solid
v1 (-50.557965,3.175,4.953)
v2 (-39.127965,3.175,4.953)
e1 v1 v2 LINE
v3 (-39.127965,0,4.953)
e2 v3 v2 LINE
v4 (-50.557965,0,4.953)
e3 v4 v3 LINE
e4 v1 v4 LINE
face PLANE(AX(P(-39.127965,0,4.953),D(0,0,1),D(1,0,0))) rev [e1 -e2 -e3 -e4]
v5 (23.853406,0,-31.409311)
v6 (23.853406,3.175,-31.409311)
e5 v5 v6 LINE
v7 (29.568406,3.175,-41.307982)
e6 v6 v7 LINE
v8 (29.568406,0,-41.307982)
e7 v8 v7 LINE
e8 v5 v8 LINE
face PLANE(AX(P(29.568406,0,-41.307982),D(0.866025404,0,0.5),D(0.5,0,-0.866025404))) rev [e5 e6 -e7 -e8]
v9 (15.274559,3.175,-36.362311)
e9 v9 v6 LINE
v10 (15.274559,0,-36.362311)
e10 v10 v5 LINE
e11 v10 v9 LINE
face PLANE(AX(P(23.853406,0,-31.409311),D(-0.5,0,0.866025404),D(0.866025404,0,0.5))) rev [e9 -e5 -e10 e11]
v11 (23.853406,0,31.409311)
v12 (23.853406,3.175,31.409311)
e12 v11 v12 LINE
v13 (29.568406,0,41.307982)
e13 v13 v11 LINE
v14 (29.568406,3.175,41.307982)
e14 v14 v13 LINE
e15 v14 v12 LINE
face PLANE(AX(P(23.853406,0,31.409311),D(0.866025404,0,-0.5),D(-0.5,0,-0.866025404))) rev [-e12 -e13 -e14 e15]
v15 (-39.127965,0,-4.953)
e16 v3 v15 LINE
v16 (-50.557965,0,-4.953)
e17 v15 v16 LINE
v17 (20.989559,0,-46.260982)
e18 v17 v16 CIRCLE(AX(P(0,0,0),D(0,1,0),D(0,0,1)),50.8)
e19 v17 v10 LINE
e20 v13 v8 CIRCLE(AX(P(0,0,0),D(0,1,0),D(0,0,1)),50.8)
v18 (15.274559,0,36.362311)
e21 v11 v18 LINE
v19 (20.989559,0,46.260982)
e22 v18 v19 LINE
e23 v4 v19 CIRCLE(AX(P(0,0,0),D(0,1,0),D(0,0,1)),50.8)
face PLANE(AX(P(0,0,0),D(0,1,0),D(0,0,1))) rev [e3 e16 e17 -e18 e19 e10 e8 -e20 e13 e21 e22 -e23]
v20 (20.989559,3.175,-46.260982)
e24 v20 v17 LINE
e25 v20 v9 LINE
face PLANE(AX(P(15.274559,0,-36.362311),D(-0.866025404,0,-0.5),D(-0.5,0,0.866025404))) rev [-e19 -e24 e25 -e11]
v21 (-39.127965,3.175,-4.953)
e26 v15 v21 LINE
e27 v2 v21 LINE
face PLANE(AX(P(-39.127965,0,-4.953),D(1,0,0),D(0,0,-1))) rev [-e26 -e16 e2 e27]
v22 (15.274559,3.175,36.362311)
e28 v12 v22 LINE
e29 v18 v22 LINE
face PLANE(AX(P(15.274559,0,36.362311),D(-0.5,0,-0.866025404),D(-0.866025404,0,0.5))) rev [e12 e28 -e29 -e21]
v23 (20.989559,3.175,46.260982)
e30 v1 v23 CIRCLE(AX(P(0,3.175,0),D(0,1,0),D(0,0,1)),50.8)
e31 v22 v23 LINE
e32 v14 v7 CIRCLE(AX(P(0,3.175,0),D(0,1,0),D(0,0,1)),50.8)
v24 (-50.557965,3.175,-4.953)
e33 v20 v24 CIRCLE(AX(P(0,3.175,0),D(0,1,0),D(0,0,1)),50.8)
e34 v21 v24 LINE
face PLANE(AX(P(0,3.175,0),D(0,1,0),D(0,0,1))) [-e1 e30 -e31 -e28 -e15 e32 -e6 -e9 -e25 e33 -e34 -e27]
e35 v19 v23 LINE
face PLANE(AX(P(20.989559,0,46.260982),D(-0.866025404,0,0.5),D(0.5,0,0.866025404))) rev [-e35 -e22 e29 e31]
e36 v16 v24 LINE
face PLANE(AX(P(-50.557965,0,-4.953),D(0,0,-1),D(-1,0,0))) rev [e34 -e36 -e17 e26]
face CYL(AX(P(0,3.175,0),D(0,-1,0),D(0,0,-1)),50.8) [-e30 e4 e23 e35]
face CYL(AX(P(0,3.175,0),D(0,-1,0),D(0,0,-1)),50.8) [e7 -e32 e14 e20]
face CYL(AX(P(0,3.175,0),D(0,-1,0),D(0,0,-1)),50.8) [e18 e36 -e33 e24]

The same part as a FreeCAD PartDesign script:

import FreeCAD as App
import Part
import Sketcher

V = App.Vector
Q = App.Units.Quantity


def add_polygon(sketch, points):
    """Adds a closed chain of lines whose ends are joined by coincident constraints."""
    first, n = sketch.GeometryCount, len(points)
    for a, b in zip(points, points[1:] + points[:1]):
        sketch.addGeometry(Part.LineSegment(App.Vector(*a, 0), App.Vector(*b, 0)), False)
    for i in range(n):
        sketch.addConstraint(Sketcher.Constraint("Coincident", first + i, 2, first + (i + 1) % n, 1))

doc = App.newDocument("Part")
body = doc.addObject("PartDesign::Body", "Body")

sketch1 = body.newObject("Sketcher::SketchObject", "Sketch")
sketch1.AttachmentSupport = (doc.getObject("XZ_Plane"), [""])
sketch1.MapMode = "FlatFace"
sketch1.addGeometry(Part.Circle(V(0, 0, 0), V(0, 0, 1), 51), False)
sketch1.addConstraint(Sketcher.Constraint("Coincident", 0, 3, -1, 1))
sketch1.addConstraint(Sketcher.Constraint("Diameter", 0, Q("4 in")))
pad1 = body.newObject("PartDesign::Pad", "Pad")
pad1.Profile = sketch1
pad1.Length = Q("0.125 in")
pad1.Reversed = True

sketch2 = body.newObject("Sketcher::SketchObject", "Sketch001")
sketch2.AttachmentSupport = (doc.getObject("XZ_Plane"), [""])
sketch2.MapMode = "FlatFace"
sketch2.AttachmentOffset = App.Placement(V(0, 0, -0.125 * 25.4), App.Rotation())
add_polygon(sketch2, [(-39, -5), (-53, -5), (-53, 5), (-39, 5)])
sketch2.addConstraint(Sketcher.Constraint("Horizontal", 0))
sketch2.addConstraint(Sketcher.Constraint("Vertical", 1))
sketch2.addConstraint(Sketcher.Constraint("Horizontal", 2))
sketch2.addConstraint(Sketcher.Constraint("Vertical", 3))
sketch2.addConstraint(Sketcher.Constraint("DistanceY", 1, 1, 1, 2, Q("0.39 in")))
sketch2.addConstraint(Sketcher.Constraint("DistanceY", 0, 2, -1, 1, Q("0.195 in")))
sketch2.addConstraint(Sketcher.Constraint("DistanceX", 0, 2, 0, 1, Q("13.747425 mm")))
sketch2.addConstraint(Sketcher.Constraint("DistanceX", 0, 2, -1, 1, Q("52.87539 mm")))
pocket1 = body.newObject("PartDesign::Pocket", "Pocket")
pocket1.Profile = sketch2
pocket1.Type = "ThroughAll"
pocket1.Reversed = True
doc.recompute()

polarpattern = body.newObject("PartDesign::PolarPattern", "PolarPattern")
polarpattern.Originals = [pocket1]
polarpattern.Axis = (doc.getObject("Y_Axis"), [""])
polarpattern.Angle = 120
polarpattern.Occurrences = 2
polarpattern.Reversed = True
body.Tip = polarpattern
doc.recompute()

polarpattern2 = body.newObject("PartDesign::PolarPattern", "PolarPattern001")
polarpattern2.Originals = [pocket1]
polarpattern2.Axis = (doc.getObject("Y_Axis"), [""])
polarpattern2.Angle = 120
polarpattern2.Occurrences = 2
body.Tip = polarpattern2

doc.recompute()
